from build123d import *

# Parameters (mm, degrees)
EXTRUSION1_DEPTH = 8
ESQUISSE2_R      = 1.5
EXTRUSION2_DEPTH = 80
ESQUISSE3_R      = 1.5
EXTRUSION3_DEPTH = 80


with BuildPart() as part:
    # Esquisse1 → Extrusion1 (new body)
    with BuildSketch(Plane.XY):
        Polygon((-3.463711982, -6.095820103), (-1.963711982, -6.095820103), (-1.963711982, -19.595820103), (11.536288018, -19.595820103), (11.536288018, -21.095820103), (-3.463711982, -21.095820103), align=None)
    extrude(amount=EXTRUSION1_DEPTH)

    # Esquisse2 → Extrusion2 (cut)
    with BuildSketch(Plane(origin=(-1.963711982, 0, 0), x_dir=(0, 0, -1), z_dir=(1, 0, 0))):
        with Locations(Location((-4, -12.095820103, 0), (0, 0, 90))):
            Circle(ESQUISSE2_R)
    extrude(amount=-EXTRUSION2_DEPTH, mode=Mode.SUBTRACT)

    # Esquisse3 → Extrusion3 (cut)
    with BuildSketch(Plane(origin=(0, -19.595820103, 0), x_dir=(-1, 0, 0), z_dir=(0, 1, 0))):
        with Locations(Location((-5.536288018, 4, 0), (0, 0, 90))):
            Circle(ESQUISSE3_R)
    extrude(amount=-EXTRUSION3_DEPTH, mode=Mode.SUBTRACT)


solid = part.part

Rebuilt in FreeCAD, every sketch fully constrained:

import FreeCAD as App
import Part
import Sketcher

V = App.Vector


def add_polygon(sketch, points):
    """Adds a closed chain of lines whose ends are joined by coincident constraints."""
    first, n = sketch.GeometryCount, len(points)
    for a, b in zip(points, points[1:] + points[:1]):
        sketch.addGeometry(Part.LineSegment(App.Vector(*a, 0), App.Vector(*b, 0)), False)
    for i in range(n):
        sketch.addConstraint(Sketcher.Constraint("Coincident", first + i, 2, first + (i + 1) % n, 1))

doc = App.newDocument("Part")
body = doc.addObject("PartDesign::Body", "Body")

# Sketch on XY plane
sketch1 = body.newObject("Sketcher::SketchObject", "Sketch")
sketch1.AttachmentSupport = (doc.getObject("XY_Plane"), [""])
sketch1.MapMode = "FlatFace"
add_polygon(sketch1, [(-2, -6.1), (-3.5, -6.1), (-3.5, -21.1), (11.5, -21.1), (11.5, -19.6), (-2, -19.6)])  # lines 0-5
sketch1.addConstraint([
    Sketcher.Constraint("Horizontal", 0),
    Sketcher.Constraint("Vertical", 1),
    Sketcher.Constraint("Horizontal", 2),
    Sketcher.Constraint("Vertical", 3),
    Sketcher.Constraint("Horizontal", 4),
    Sketcher.Constraint("Vertical", 5),
    Sketcher.Constraint("Equal", 2, 1),
    Sketcher.Constraint("Equal", 0, 3),
    Sketcher.Constraint("DistanceX", 2, 1, 2, 2, 15.0),
    Sketcher.Constraint("DistanceX", 0, 2, 0, 1, 1.5),
    Sketcher.Constraint("DistanceX", 0, 2, -1, 1, 3.463712),
    Sketcher.Constraint("DistanceY", 0, 2, -1, 1, 6.09582),
])
pad1 = body.newObject("PartDesign::Pad", "Pad")
pad1.Profile = sketch1
pad1.Length = 8

# Sketch on YZ plane
sketch2 = body.newObject("Sketcher::SketchObject", "Sketch001")
sketch2.AttachmentSupport = (doc.getObject("YZ_Plane"), [""])
sketch2.MapMode = "FlatFace"
sketch2.AttachmentOffset = App.Placement(V(0, 0, -1.963712), App.Rotation())
sketch2.addGeometry(Part.Circle(V(-12.1, 4, 0), V(0, 0, 1), 1.5), False)
sketch2.addConstraint([
    Sketcher.Constraint("Diameter", 0, 3.0),
    Sketcher.Constraint("DistanceY", -1, 1, 0, 3, 4.0),
    Sketcher.Constraint("DistanceX", 0, 3, -1, 1, 12.09582),
])
pocket1 = body.newObject("PartDesign::Pocket", "Pocket")
pocket1.Profile = sketch2
pocket1.Length = 80

# Sketch on XZ plane
sketch3 = body.newObject("Sketcher::SketchObject", "Sketch002")
sketch3.AttachmentSupport = (doc.getObject("XZ_Plane"), [""])
sketch3.MapMode = "FlatFace"
sketch3.AttachmentOffset = App.Placement(V(0, 0, 19.59582), App.Rotation())
sketch3.addGeometry(Part.Circle(V(5.5, 4, 0), V(0, 0, 1), 1.5), False)
sketch3.addConstraint([
    Sketcher.Constraint("Diameter", 0, 3.0),
    Sketcher.Constraint("DistanceY", -1, 1, 0, 3, 4.0),
    Sketcher.Constraint("DistanceX", -1, 1, 0, 3, 5.536288),
])
pocket2 = body.newObject("PartDesign::Pocket", "Pocket001")
pocket2.Profile = sketch3
pocket2.Length = 80
pocket2.Reversed = True

doc.recompute()
